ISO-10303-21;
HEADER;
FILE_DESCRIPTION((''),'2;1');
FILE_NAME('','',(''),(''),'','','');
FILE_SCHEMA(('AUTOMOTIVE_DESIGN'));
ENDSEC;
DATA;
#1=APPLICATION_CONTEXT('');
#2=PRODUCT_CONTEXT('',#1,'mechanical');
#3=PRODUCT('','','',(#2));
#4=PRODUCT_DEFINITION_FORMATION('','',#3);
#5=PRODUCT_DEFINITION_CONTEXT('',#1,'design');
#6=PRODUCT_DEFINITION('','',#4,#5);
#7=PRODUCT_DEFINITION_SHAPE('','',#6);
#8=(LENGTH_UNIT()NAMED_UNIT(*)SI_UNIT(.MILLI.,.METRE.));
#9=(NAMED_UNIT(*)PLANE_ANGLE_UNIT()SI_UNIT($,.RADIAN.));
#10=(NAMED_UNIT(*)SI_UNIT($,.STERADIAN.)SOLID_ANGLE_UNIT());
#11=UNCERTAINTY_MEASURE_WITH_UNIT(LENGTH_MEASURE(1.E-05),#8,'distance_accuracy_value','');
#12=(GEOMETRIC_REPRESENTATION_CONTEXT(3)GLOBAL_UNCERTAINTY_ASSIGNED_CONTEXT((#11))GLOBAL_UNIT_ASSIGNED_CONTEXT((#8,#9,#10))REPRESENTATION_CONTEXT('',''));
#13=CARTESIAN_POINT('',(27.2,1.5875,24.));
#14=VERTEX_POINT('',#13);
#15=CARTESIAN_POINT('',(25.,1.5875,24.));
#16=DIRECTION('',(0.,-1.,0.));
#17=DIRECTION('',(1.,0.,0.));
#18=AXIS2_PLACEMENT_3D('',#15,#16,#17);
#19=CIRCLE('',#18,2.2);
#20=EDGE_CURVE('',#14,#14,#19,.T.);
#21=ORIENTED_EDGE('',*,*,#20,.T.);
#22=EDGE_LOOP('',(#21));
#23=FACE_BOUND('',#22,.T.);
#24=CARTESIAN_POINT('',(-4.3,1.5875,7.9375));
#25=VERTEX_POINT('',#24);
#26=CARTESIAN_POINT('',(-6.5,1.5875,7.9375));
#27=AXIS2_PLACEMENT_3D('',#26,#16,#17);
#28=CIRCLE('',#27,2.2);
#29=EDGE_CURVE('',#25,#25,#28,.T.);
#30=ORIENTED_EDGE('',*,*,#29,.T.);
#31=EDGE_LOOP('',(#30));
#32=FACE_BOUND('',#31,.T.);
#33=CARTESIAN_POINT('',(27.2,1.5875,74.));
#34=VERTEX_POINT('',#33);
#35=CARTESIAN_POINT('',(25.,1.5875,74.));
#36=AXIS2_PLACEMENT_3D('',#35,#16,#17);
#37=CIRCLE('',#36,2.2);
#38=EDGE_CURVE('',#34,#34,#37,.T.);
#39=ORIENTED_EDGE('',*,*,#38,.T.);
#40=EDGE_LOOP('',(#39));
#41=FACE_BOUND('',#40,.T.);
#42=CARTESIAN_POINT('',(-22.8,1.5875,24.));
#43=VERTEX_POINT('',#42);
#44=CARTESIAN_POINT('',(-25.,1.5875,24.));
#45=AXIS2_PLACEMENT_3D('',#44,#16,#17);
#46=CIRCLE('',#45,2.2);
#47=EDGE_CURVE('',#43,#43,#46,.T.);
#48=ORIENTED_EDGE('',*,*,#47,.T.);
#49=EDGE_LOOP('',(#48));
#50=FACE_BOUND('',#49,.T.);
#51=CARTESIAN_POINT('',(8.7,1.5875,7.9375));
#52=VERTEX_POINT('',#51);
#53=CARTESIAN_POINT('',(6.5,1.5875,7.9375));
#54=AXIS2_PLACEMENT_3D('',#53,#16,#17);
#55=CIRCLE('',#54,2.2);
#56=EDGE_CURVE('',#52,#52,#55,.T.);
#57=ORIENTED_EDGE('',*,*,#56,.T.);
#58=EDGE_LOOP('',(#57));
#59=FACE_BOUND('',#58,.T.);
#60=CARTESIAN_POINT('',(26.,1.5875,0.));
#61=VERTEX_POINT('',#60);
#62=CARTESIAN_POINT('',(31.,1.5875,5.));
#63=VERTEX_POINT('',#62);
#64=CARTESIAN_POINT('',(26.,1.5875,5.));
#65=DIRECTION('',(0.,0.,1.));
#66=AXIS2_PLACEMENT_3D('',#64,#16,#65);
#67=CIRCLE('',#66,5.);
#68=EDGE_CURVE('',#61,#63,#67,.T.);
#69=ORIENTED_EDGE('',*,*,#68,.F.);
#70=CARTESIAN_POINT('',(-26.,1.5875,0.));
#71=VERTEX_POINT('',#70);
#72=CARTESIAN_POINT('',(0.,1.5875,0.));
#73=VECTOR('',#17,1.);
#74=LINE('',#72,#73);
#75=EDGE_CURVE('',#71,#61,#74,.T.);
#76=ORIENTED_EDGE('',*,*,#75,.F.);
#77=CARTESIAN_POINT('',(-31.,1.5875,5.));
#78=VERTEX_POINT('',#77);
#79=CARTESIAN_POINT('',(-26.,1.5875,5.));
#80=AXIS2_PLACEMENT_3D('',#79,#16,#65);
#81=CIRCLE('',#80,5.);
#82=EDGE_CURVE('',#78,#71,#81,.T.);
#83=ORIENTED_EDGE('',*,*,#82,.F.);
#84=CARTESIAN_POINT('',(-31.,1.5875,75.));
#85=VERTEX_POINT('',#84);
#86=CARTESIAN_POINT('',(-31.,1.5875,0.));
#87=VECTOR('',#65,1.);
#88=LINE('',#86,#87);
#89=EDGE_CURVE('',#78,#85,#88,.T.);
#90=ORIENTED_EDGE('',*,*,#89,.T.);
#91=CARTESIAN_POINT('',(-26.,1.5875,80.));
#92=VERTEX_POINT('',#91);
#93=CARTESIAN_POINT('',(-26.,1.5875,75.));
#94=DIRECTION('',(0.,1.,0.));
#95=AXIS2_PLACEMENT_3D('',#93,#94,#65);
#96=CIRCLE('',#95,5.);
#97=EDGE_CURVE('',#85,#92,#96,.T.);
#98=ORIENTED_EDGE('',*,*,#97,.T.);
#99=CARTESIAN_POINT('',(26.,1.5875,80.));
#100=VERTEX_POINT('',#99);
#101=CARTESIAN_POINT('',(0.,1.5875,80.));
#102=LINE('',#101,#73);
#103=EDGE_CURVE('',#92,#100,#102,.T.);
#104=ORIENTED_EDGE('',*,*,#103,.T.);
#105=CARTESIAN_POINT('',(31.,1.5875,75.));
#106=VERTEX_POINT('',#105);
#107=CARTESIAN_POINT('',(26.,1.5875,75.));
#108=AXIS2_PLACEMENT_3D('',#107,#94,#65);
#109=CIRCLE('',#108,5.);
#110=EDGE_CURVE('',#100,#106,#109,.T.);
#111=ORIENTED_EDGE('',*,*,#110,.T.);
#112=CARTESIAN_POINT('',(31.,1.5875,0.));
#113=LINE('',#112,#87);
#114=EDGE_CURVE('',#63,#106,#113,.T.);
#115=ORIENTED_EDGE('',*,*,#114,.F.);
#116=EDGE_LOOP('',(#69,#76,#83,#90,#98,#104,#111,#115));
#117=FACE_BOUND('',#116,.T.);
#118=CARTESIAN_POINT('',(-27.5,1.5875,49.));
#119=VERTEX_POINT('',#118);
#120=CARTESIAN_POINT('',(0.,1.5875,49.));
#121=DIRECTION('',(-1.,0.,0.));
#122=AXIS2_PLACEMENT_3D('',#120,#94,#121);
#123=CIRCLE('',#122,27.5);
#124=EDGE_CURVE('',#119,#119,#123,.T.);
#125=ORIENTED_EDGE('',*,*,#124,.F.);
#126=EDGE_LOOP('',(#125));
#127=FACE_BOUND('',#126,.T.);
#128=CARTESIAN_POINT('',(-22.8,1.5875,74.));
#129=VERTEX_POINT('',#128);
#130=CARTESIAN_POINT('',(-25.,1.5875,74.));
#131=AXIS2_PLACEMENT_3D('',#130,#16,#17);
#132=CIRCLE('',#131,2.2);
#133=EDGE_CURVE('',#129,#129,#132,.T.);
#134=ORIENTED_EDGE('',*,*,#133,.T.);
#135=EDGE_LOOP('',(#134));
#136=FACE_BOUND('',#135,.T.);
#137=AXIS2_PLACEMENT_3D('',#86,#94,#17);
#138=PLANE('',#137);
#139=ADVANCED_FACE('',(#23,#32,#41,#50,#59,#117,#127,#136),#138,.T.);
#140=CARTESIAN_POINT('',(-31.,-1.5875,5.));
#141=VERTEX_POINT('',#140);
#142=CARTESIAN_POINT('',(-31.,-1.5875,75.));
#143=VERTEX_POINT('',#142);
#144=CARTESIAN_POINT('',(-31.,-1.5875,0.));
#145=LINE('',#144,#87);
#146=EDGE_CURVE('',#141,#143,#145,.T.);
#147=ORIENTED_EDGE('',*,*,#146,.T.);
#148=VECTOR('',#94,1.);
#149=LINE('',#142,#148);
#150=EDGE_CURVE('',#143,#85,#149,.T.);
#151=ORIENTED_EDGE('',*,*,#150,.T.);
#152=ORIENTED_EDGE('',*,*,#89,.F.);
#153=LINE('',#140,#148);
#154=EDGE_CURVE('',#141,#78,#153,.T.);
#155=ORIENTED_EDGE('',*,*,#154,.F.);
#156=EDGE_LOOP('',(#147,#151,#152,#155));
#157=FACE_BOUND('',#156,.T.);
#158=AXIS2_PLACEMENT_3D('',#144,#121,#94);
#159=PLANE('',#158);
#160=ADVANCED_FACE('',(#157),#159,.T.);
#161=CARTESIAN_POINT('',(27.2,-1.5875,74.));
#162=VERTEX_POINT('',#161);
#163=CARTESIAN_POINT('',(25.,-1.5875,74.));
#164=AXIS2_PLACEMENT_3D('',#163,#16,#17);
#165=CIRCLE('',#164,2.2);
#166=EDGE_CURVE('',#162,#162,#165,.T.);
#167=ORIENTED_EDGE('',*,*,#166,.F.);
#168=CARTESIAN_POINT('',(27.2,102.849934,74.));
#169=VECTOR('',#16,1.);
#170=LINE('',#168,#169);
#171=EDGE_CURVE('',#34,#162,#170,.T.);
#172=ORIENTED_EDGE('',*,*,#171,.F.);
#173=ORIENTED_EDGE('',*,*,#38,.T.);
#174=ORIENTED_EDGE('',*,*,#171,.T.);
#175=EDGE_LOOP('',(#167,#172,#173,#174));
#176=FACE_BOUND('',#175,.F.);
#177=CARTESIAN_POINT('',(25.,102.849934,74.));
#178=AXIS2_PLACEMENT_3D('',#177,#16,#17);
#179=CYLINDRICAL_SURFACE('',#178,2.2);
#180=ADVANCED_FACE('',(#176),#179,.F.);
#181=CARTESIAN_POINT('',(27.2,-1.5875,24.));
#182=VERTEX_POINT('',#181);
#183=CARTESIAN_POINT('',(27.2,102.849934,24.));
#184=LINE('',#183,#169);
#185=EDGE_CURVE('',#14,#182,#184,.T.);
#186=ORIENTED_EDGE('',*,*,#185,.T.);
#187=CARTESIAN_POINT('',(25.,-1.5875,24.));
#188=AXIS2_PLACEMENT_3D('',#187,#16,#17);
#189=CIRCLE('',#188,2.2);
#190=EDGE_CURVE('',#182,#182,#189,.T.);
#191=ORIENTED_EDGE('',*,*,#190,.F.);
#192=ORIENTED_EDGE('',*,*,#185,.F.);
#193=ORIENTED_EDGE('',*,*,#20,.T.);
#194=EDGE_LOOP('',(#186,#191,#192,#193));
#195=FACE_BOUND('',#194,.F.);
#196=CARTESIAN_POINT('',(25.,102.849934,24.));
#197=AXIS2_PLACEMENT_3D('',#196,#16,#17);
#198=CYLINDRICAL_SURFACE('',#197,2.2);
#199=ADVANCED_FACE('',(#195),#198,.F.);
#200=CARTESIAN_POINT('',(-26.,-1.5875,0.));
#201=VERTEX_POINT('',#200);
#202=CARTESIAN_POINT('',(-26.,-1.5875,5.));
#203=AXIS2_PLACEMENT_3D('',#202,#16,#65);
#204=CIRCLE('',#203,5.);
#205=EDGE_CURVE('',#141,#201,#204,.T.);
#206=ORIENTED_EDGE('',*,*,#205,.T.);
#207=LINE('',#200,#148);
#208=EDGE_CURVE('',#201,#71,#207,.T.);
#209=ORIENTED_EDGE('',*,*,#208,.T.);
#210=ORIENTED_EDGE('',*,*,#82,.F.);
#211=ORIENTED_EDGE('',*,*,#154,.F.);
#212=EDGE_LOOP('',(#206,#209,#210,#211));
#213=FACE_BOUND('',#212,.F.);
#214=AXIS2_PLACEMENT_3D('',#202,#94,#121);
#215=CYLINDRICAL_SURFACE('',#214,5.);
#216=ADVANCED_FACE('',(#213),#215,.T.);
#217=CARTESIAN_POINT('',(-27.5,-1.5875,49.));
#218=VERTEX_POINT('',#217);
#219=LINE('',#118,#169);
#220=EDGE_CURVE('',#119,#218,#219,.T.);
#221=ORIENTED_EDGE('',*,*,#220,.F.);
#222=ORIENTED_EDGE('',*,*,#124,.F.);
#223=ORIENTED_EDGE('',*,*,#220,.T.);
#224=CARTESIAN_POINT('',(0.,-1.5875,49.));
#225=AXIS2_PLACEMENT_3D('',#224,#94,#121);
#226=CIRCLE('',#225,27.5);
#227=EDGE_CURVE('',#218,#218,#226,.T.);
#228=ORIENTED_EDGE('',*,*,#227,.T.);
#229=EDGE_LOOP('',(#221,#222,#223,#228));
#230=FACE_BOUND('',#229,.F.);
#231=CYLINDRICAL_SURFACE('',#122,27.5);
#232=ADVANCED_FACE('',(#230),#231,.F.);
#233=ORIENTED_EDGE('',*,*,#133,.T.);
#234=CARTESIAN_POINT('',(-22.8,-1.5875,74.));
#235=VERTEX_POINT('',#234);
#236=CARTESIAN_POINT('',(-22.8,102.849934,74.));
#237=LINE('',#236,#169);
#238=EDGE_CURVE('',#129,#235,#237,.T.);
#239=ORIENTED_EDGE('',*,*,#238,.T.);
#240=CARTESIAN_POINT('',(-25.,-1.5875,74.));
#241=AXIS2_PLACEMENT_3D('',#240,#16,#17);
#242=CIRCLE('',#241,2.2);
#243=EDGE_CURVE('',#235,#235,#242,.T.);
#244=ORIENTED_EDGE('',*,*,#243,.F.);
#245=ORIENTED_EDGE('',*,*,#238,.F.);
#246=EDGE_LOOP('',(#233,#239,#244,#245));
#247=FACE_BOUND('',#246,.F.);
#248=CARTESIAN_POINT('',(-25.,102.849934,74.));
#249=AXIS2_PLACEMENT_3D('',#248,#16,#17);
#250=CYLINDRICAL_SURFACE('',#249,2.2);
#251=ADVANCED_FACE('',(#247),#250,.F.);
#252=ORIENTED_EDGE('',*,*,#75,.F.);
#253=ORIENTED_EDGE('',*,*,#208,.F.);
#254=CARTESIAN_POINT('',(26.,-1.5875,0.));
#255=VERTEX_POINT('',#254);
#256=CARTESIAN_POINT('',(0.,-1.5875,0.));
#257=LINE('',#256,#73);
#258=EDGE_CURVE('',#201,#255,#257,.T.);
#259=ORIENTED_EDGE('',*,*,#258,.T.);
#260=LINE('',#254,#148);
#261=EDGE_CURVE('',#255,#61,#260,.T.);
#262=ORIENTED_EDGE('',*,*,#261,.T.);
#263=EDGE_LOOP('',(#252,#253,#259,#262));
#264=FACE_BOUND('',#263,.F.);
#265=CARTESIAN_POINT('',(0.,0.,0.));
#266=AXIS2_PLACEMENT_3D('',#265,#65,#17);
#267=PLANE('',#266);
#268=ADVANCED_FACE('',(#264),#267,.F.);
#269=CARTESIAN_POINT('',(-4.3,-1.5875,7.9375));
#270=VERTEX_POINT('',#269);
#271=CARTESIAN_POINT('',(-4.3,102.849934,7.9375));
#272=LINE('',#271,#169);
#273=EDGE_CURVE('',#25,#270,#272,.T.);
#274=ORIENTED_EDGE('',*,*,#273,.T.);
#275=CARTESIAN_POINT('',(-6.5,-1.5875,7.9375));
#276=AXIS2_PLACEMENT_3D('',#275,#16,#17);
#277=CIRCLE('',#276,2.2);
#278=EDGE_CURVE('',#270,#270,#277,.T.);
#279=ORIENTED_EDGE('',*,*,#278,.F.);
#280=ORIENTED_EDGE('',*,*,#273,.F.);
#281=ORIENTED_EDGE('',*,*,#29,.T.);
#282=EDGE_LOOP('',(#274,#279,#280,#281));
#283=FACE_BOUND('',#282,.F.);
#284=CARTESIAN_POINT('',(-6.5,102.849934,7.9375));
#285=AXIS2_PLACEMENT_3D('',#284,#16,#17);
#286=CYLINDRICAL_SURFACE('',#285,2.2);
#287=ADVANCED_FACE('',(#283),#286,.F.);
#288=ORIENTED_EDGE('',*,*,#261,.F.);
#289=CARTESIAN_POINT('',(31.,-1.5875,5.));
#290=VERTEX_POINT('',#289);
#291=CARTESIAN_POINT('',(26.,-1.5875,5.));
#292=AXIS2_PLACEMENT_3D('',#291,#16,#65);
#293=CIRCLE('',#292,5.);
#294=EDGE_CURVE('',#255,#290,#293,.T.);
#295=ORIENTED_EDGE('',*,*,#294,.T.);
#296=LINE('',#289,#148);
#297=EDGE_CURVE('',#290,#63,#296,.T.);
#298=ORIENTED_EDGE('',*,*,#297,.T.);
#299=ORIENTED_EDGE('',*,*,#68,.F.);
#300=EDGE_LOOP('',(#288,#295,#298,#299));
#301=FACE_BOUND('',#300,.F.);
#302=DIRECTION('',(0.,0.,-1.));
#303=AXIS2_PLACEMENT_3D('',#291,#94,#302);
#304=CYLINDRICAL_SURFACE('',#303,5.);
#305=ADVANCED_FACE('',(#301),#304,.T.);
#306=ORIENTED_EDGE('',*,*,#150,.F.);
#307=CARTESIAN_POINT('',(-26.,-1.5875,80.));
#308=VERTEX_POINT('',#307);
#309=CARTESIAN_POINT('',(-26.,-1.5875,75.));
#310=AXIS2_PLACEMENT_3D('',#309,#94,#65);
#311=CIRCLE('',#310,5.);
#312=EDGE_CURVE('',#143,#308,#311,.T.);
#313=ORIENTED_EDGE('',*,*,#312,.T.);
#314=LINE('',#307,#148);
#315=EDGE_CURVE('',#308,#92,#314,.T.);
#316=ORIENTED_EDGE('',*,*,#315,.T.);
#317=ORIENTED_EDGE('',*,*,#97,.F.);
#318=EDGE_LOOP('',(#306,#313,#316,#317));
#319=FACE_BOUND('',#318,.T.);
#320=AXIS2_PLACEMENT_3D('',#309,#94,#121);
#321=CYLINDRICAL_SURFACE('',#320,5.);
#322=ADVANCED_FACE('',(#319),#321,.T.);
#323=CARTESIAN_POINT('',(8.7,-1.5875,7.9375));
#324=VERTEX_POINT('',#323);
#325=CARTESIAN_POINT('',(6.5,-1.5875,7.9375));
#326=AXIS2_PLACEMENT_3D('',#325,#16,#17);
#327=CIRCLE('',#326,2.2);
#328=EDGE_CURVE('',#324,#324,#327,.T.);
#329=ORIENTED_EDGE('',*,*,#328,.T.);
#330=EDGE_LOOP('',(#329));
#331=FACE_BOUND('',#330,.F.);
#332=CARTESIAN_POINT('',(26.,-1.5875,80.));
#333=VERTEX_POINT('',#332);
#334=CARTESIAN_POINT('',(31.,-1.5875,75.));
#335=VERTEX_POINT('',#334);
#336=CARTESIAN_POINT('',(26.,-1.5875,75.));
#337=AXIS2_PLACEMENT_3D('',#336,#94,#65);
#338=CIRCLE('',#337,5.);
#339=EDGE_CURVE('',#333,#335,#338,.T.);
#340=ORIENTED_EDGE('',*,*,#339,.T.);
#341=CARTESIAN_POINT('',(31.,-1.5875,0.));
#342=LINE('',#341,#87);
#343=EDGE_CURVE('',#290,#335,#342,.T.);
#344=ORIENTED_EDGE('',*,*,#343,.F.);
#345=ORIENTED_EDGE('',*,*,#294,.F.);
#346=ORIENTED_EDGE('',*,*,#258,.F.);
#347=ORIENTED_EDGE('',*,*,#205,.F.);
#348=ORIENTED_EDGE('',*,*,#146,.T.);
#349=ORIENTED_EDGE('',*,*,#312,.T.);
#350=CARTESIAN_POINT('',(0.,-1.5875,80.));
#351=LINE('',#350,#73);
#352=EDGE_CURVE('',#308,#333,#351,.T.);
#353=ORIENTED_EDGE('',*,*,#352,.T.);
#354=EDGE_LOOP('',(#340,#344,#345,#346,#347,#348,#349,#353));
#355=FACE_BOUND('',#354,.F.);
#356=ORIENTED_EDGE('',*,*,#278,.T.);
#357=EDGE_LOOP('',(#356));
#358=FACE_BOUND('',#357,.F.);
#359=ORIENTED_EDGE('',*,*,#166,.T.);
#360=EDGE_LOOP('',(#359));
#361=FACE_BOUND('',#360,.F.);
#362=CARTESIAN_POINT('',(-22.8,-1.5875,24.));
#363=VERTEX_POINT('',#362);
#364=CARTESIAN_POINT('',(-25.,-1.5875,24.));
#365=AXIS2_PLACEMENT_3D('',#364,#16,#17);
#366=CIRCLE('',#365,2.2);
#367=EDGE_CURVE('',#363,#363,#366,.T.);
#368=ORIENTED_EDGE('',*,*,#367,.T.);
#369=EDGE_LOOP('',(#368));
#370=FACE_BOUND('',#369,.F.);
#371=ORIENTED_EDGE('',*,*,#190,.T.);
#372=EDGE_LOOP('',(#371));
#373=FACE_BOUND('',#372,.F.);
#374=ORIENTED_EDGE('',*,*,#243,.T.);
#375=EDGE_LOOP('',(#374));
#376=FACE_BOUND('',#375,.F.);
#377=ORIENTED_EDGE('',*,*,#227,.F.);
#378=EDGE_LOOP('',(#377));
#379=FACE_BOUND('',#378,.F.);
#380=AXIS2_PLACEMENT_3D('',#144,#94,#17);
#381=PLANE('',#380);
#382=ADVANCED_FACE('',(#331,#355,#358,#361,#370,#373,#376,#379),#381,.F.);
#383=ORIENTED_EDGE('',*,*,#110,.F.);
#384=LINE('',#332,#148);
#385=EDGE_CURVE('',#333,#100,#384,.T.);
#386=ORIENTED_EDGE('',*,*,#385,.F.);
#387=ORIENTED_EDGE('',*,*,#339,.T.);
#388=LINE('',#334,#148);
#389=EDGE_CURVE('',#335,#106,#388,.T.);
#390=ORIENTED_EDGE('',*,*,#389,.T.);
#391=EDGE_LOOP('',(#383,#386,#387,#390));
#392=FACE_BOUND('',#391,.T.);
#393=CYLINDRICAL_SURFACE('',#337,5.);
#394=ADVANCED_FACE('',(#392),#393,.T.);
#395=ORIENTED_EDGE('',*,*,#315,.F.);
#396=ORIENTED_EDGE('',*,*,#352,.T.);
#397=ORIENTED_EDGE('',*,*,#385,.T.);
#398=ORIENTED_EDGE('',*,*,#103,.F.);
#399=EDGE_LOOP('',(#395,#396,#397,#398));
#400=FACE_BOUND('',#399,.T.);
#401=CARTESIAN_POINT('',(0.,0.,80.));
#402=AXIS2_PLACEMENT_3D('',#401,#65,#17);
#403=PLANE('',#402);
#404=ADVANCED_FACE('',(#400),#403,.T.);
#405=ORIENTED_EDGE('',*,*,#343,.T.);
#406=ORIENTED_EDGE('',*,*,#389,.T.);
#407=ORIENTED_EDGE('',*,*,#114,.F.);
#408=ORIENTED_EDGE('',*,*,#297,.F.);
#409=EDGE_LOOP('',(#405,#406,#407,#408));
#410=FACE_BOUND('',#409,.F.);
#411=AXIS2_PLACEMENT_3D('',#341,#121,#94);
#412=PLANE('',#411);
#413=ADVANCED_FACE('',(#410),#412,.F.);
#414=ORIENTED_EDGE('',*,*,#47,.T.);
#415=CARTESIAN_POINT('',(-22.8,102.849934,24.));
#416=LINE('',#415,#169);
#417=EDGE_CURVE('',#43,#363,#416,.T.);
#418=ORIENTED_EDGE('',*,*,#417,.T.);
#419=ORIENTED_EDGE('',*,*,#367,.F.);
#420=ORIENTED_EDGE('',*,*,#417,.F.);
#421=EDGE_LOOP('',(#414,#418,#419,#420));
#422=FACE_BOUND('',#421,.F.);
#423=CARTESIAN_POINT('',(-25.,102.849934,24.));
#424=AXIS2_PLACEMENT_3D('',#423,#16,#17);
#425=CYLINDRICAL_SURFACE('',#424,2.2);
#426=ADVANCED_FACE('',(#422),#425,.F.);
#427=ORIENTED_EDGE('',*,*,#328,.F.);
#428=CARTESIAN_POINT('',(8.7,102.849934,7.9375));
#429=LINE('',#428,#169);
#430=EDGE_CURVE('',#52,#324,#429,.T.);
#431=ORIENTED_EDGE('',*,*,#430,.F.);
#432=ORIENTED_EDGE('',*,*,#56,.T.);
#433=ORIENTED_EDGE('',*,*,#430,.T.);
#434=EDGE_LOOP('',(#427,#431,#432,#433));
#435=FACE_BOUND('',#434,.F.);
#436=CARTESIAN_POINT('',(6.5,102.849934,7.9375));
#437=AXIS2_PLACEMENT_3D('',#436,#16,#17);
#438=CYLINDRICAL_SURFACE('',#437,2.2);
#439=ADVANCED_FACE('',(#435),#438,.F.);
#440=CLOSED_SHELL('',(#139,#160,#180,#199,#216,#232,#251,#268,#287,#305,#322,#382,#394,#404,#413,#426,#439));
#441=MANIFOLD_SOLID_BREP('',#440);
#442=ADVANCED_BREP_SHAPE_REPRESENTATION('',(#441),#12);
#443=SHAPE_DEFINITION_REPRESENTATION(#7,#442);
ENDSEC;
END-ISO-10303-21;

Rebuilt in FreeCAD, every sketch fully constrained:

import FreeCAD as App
import Part
import Sketcher
from FreeCAD import Vector
Q = App.Units.Quantity


def edges_at(feature, points):
    """Names of the edges that pass closest to the given points."""
    edges = feature.Shape.Edges
    near = lambda p: min(range(len(edges)), key=lambda i: edges[i].distToShape(Part.Vertex(*p))[0])
    return sorted({f"Edge{near(p) + 1}" for p in points})


def add_polygon(sketch, points):
    """Adds a closed chain of lines whose ends are joined by coincident constraints."""
    first, n = sketch.GeometryCount, len(points)
    for a, b in zip(points, points[1:] + points[:1]):
        sketch.addGeometry(Part.LineSegment(App.Vector(*a, 0), App.Vector(*b, 0)), False)
    for i in range(n):
        sketch.addConstraint(Sketcher.Constraint("Coincident", first + i, 2, first + (i + 1) % n, 1))

doc = App.newDocument("Part")
body = doc.addObject("PartDesign::Body", "Body")

# Sketch on XY plane
sketch1 = doc.addObject("Sketcher::SketchObject", "Sketch")
body.addObject(sketch1)
sketch1.AttachmentSupport = (doc.XY_Plane, [""])
sketch1.MapMode = "FlatFace"
add_polygon(sketch1, [(-31, 1.6), (-31, -1.6), (31, -1.6), (31, 1.6)])  # lines 0-3
sketch1.addConstraint(Sketcher.Constraint("Vertical", 0))
sketch1.addConstraint(Sketcher.Constraint("Horizontal", 1))
sketch1.addConstraint(Sketcher.Constraint("Vertical", 2))
sketch1.addConstraint(Sketcher.Constraint("Horizontal", 3))
sketch1.addConstraint(Sketcher.Constraint("Symmetric", 0, 2, 2, 2, -1, 1))
sketch1.addConstraint(Sketcher.Constraint("DistanceX", 1, 1, 1, 2, Q("62 mm")))
sketch1.addConstraint(Sketcher.Constraint("DistanceY", 0, 2, 0, 1, Q("3.175 mm")))
pad1 = doc.addObject("PartDesign::Pad", "Pad")
body.addObject(pad1)
pad1.Profile = sketch1
pad1.Length = 80

# Sketch on XZ plane
sketch2 = doc.addObject("Sketcher::SketchObject", "Sketch001")
body.addObject(sketch2)
sketch2.AttachmentSupport = (doc.XZ_Plane, [""])
sketch2.MapMode = "FlatFace"
sketch2.AttachmentOffset = App.Placement(Vector(0, 0, -1.5875), App.Rotation())
sketch2.addGeometry(Part.Circle(Vector(6.5, 7.9, 0), Vector(0, 0, 1), 2.2), False)
sketch2.addGeometry(Part.Circle(Vector(-6.5, 7.9, 0), Vector(0, 0, 1), 2.2), False)
sketch2.addConstraint(Sketcher.Constraint("Equal", 0, 1))
sketch2.addConstraint(Sketcher.Constraint("Symmetric", 0, 3, 1, 3, -2))
sketch2.addConstraint(Sketcher.Constraint("Diameter", 0, Q("4.4 mm")))
sketch2.addConstraint(Sketcher.Constraint("DistanceX", 1, 3, 0, 3, Q("13 mm")))
sketch2.addConstraint(Sketcher.Constraint("DistanceY", -1, 1, 0, 3, Q("7.9375 mm")))
doc.recompute()
hole = doc.addObject("PartDesign::Hole", "Hole")
body.addObject(hole)
hole.Profile = sketch2
hole.ThreadType = "None"
hole.Diameter = 4.4
hole.DepthType = "ThroughAll"
hole.Reversed = True

# Sketch on XZ plane
sketch3 = doc.addObject("Sketcher::SketchObject", "Sketch002")
body.addObject(sketch3)
sketch3.AttachmentSupport = (doc.XZ_Plane, [""])
sketch3.MapMode = "FlatFace"
sketch3.AttachmentOffset = App.Placement(Vector(0, 0, -1.5875), App.Rotation())
sketch3.addGeometry(Part.Circle(Vector(25, 74, 0), Vector(0, 0, 1), 2.2), False)
sketch3.addGeometry(Part.Circle(Vector(-25, 74, 0), Vector(0, 0, 1), 2.2), False)
sketch3.addGeometry(Part.Circle(Vector(-25, 24, 0), Vector(0, 0, 1), 2.2), False)
sketch3.addGeometry(Part.Circle(Vector(25, 24, 0), Vector(0, 0, 1), 2.2), False)
sketch3.addConstraint(Sketcher.Constraint("Equal", 0, 1))
sketch3.addConstraint(Sketcher.Constraint("Equal", 1, 2))
sketch3.addConstraint(Sketcher.Constraint("Equal", 2, 3))
sketch3.addConstraint(Sketcher.Constraint("Symmetric", 0, 3, 1, 3, -2))
sketch3.addConstraint(Sketcher.Constraint("Symmetric", 2, 3, 3, 3, -2))
sketch3.addConstraint(Sketcher.Constraint("Vertical", 1, 3, 2, 3))
sketch3.addConstraint(Sketcher.Constraint("Diameter", 0, Q("4.4 mm")))
sketch3.addConstraint(Sketcher.Constraint("DistanceX", -1, 1, 0, 3, Q("25 mm")))
sketch3.addConstraint(Sketcher.Constraint("DistanceY", -1, 1, 0, 3, Q("74 mm")))
sketch3.addConstraint(Sketcher.Constraint("DistanceY", -1, 1, 2, 3, Q("24 mm")))
doc.recompute()
hole2 = doc.addObject("PartDesign::Hole", "Hole001")
body.addObject(hole2)
hole2.Profile = sketch3
hole2.ThreadType = "None"
hole2.Diameter = 4.4
hole2.DepthType = "ThroughAll"
hole2.Reversed = True

# Sketch on XZ plane
sketch4 = doc.addObject("Sketcher::SketchObject", "Sketch003")
body.addObject(sketch4)
sketch4.AttachmentSupport = (doc.XZ_Plane, [""])
sketch4.MapMode = "FlatFace"
sketch4.AttachmentOffset = App.Placement(Vector(0, 0, -1.5875), App.Rotation())
sketch4.addGeometry(Part.Circle(Vector(0, 49, 0), Vector(0, 0, 1), 28), False)
sketch4.addConstraint(Sketcher.Constraint("PointOnObject", 0, 3, -2))
sketch4.addConstraint(Sketcher.Constraint("Diameter", 0, Q("55 mm")))
sketch4.addConstraint(Sketcher.Constraint("DistanceY", -1, 1, 0, 3, Q("49 mm")))
pocket1 = doc.addObject("PartDesign::Pocket", "Pocket")
body.addObject(pocket1)
pocket1.Profile = sketch4
pocket1.Length = 25
pocket1.Reversed = True
doc.recompute()

fillet = doc.addObject("PartDesign::Fillet", "Fillet")
body.addObject(fillet)
fillet.Base = (pocket1, edges_at(pocket1, [
    (31, 0, 80),
    (-31, 0, 80),
    (-31, 0, 0),
    (31, 0, 0),
]))
fillet.Radius = 5

doc.recompute()
